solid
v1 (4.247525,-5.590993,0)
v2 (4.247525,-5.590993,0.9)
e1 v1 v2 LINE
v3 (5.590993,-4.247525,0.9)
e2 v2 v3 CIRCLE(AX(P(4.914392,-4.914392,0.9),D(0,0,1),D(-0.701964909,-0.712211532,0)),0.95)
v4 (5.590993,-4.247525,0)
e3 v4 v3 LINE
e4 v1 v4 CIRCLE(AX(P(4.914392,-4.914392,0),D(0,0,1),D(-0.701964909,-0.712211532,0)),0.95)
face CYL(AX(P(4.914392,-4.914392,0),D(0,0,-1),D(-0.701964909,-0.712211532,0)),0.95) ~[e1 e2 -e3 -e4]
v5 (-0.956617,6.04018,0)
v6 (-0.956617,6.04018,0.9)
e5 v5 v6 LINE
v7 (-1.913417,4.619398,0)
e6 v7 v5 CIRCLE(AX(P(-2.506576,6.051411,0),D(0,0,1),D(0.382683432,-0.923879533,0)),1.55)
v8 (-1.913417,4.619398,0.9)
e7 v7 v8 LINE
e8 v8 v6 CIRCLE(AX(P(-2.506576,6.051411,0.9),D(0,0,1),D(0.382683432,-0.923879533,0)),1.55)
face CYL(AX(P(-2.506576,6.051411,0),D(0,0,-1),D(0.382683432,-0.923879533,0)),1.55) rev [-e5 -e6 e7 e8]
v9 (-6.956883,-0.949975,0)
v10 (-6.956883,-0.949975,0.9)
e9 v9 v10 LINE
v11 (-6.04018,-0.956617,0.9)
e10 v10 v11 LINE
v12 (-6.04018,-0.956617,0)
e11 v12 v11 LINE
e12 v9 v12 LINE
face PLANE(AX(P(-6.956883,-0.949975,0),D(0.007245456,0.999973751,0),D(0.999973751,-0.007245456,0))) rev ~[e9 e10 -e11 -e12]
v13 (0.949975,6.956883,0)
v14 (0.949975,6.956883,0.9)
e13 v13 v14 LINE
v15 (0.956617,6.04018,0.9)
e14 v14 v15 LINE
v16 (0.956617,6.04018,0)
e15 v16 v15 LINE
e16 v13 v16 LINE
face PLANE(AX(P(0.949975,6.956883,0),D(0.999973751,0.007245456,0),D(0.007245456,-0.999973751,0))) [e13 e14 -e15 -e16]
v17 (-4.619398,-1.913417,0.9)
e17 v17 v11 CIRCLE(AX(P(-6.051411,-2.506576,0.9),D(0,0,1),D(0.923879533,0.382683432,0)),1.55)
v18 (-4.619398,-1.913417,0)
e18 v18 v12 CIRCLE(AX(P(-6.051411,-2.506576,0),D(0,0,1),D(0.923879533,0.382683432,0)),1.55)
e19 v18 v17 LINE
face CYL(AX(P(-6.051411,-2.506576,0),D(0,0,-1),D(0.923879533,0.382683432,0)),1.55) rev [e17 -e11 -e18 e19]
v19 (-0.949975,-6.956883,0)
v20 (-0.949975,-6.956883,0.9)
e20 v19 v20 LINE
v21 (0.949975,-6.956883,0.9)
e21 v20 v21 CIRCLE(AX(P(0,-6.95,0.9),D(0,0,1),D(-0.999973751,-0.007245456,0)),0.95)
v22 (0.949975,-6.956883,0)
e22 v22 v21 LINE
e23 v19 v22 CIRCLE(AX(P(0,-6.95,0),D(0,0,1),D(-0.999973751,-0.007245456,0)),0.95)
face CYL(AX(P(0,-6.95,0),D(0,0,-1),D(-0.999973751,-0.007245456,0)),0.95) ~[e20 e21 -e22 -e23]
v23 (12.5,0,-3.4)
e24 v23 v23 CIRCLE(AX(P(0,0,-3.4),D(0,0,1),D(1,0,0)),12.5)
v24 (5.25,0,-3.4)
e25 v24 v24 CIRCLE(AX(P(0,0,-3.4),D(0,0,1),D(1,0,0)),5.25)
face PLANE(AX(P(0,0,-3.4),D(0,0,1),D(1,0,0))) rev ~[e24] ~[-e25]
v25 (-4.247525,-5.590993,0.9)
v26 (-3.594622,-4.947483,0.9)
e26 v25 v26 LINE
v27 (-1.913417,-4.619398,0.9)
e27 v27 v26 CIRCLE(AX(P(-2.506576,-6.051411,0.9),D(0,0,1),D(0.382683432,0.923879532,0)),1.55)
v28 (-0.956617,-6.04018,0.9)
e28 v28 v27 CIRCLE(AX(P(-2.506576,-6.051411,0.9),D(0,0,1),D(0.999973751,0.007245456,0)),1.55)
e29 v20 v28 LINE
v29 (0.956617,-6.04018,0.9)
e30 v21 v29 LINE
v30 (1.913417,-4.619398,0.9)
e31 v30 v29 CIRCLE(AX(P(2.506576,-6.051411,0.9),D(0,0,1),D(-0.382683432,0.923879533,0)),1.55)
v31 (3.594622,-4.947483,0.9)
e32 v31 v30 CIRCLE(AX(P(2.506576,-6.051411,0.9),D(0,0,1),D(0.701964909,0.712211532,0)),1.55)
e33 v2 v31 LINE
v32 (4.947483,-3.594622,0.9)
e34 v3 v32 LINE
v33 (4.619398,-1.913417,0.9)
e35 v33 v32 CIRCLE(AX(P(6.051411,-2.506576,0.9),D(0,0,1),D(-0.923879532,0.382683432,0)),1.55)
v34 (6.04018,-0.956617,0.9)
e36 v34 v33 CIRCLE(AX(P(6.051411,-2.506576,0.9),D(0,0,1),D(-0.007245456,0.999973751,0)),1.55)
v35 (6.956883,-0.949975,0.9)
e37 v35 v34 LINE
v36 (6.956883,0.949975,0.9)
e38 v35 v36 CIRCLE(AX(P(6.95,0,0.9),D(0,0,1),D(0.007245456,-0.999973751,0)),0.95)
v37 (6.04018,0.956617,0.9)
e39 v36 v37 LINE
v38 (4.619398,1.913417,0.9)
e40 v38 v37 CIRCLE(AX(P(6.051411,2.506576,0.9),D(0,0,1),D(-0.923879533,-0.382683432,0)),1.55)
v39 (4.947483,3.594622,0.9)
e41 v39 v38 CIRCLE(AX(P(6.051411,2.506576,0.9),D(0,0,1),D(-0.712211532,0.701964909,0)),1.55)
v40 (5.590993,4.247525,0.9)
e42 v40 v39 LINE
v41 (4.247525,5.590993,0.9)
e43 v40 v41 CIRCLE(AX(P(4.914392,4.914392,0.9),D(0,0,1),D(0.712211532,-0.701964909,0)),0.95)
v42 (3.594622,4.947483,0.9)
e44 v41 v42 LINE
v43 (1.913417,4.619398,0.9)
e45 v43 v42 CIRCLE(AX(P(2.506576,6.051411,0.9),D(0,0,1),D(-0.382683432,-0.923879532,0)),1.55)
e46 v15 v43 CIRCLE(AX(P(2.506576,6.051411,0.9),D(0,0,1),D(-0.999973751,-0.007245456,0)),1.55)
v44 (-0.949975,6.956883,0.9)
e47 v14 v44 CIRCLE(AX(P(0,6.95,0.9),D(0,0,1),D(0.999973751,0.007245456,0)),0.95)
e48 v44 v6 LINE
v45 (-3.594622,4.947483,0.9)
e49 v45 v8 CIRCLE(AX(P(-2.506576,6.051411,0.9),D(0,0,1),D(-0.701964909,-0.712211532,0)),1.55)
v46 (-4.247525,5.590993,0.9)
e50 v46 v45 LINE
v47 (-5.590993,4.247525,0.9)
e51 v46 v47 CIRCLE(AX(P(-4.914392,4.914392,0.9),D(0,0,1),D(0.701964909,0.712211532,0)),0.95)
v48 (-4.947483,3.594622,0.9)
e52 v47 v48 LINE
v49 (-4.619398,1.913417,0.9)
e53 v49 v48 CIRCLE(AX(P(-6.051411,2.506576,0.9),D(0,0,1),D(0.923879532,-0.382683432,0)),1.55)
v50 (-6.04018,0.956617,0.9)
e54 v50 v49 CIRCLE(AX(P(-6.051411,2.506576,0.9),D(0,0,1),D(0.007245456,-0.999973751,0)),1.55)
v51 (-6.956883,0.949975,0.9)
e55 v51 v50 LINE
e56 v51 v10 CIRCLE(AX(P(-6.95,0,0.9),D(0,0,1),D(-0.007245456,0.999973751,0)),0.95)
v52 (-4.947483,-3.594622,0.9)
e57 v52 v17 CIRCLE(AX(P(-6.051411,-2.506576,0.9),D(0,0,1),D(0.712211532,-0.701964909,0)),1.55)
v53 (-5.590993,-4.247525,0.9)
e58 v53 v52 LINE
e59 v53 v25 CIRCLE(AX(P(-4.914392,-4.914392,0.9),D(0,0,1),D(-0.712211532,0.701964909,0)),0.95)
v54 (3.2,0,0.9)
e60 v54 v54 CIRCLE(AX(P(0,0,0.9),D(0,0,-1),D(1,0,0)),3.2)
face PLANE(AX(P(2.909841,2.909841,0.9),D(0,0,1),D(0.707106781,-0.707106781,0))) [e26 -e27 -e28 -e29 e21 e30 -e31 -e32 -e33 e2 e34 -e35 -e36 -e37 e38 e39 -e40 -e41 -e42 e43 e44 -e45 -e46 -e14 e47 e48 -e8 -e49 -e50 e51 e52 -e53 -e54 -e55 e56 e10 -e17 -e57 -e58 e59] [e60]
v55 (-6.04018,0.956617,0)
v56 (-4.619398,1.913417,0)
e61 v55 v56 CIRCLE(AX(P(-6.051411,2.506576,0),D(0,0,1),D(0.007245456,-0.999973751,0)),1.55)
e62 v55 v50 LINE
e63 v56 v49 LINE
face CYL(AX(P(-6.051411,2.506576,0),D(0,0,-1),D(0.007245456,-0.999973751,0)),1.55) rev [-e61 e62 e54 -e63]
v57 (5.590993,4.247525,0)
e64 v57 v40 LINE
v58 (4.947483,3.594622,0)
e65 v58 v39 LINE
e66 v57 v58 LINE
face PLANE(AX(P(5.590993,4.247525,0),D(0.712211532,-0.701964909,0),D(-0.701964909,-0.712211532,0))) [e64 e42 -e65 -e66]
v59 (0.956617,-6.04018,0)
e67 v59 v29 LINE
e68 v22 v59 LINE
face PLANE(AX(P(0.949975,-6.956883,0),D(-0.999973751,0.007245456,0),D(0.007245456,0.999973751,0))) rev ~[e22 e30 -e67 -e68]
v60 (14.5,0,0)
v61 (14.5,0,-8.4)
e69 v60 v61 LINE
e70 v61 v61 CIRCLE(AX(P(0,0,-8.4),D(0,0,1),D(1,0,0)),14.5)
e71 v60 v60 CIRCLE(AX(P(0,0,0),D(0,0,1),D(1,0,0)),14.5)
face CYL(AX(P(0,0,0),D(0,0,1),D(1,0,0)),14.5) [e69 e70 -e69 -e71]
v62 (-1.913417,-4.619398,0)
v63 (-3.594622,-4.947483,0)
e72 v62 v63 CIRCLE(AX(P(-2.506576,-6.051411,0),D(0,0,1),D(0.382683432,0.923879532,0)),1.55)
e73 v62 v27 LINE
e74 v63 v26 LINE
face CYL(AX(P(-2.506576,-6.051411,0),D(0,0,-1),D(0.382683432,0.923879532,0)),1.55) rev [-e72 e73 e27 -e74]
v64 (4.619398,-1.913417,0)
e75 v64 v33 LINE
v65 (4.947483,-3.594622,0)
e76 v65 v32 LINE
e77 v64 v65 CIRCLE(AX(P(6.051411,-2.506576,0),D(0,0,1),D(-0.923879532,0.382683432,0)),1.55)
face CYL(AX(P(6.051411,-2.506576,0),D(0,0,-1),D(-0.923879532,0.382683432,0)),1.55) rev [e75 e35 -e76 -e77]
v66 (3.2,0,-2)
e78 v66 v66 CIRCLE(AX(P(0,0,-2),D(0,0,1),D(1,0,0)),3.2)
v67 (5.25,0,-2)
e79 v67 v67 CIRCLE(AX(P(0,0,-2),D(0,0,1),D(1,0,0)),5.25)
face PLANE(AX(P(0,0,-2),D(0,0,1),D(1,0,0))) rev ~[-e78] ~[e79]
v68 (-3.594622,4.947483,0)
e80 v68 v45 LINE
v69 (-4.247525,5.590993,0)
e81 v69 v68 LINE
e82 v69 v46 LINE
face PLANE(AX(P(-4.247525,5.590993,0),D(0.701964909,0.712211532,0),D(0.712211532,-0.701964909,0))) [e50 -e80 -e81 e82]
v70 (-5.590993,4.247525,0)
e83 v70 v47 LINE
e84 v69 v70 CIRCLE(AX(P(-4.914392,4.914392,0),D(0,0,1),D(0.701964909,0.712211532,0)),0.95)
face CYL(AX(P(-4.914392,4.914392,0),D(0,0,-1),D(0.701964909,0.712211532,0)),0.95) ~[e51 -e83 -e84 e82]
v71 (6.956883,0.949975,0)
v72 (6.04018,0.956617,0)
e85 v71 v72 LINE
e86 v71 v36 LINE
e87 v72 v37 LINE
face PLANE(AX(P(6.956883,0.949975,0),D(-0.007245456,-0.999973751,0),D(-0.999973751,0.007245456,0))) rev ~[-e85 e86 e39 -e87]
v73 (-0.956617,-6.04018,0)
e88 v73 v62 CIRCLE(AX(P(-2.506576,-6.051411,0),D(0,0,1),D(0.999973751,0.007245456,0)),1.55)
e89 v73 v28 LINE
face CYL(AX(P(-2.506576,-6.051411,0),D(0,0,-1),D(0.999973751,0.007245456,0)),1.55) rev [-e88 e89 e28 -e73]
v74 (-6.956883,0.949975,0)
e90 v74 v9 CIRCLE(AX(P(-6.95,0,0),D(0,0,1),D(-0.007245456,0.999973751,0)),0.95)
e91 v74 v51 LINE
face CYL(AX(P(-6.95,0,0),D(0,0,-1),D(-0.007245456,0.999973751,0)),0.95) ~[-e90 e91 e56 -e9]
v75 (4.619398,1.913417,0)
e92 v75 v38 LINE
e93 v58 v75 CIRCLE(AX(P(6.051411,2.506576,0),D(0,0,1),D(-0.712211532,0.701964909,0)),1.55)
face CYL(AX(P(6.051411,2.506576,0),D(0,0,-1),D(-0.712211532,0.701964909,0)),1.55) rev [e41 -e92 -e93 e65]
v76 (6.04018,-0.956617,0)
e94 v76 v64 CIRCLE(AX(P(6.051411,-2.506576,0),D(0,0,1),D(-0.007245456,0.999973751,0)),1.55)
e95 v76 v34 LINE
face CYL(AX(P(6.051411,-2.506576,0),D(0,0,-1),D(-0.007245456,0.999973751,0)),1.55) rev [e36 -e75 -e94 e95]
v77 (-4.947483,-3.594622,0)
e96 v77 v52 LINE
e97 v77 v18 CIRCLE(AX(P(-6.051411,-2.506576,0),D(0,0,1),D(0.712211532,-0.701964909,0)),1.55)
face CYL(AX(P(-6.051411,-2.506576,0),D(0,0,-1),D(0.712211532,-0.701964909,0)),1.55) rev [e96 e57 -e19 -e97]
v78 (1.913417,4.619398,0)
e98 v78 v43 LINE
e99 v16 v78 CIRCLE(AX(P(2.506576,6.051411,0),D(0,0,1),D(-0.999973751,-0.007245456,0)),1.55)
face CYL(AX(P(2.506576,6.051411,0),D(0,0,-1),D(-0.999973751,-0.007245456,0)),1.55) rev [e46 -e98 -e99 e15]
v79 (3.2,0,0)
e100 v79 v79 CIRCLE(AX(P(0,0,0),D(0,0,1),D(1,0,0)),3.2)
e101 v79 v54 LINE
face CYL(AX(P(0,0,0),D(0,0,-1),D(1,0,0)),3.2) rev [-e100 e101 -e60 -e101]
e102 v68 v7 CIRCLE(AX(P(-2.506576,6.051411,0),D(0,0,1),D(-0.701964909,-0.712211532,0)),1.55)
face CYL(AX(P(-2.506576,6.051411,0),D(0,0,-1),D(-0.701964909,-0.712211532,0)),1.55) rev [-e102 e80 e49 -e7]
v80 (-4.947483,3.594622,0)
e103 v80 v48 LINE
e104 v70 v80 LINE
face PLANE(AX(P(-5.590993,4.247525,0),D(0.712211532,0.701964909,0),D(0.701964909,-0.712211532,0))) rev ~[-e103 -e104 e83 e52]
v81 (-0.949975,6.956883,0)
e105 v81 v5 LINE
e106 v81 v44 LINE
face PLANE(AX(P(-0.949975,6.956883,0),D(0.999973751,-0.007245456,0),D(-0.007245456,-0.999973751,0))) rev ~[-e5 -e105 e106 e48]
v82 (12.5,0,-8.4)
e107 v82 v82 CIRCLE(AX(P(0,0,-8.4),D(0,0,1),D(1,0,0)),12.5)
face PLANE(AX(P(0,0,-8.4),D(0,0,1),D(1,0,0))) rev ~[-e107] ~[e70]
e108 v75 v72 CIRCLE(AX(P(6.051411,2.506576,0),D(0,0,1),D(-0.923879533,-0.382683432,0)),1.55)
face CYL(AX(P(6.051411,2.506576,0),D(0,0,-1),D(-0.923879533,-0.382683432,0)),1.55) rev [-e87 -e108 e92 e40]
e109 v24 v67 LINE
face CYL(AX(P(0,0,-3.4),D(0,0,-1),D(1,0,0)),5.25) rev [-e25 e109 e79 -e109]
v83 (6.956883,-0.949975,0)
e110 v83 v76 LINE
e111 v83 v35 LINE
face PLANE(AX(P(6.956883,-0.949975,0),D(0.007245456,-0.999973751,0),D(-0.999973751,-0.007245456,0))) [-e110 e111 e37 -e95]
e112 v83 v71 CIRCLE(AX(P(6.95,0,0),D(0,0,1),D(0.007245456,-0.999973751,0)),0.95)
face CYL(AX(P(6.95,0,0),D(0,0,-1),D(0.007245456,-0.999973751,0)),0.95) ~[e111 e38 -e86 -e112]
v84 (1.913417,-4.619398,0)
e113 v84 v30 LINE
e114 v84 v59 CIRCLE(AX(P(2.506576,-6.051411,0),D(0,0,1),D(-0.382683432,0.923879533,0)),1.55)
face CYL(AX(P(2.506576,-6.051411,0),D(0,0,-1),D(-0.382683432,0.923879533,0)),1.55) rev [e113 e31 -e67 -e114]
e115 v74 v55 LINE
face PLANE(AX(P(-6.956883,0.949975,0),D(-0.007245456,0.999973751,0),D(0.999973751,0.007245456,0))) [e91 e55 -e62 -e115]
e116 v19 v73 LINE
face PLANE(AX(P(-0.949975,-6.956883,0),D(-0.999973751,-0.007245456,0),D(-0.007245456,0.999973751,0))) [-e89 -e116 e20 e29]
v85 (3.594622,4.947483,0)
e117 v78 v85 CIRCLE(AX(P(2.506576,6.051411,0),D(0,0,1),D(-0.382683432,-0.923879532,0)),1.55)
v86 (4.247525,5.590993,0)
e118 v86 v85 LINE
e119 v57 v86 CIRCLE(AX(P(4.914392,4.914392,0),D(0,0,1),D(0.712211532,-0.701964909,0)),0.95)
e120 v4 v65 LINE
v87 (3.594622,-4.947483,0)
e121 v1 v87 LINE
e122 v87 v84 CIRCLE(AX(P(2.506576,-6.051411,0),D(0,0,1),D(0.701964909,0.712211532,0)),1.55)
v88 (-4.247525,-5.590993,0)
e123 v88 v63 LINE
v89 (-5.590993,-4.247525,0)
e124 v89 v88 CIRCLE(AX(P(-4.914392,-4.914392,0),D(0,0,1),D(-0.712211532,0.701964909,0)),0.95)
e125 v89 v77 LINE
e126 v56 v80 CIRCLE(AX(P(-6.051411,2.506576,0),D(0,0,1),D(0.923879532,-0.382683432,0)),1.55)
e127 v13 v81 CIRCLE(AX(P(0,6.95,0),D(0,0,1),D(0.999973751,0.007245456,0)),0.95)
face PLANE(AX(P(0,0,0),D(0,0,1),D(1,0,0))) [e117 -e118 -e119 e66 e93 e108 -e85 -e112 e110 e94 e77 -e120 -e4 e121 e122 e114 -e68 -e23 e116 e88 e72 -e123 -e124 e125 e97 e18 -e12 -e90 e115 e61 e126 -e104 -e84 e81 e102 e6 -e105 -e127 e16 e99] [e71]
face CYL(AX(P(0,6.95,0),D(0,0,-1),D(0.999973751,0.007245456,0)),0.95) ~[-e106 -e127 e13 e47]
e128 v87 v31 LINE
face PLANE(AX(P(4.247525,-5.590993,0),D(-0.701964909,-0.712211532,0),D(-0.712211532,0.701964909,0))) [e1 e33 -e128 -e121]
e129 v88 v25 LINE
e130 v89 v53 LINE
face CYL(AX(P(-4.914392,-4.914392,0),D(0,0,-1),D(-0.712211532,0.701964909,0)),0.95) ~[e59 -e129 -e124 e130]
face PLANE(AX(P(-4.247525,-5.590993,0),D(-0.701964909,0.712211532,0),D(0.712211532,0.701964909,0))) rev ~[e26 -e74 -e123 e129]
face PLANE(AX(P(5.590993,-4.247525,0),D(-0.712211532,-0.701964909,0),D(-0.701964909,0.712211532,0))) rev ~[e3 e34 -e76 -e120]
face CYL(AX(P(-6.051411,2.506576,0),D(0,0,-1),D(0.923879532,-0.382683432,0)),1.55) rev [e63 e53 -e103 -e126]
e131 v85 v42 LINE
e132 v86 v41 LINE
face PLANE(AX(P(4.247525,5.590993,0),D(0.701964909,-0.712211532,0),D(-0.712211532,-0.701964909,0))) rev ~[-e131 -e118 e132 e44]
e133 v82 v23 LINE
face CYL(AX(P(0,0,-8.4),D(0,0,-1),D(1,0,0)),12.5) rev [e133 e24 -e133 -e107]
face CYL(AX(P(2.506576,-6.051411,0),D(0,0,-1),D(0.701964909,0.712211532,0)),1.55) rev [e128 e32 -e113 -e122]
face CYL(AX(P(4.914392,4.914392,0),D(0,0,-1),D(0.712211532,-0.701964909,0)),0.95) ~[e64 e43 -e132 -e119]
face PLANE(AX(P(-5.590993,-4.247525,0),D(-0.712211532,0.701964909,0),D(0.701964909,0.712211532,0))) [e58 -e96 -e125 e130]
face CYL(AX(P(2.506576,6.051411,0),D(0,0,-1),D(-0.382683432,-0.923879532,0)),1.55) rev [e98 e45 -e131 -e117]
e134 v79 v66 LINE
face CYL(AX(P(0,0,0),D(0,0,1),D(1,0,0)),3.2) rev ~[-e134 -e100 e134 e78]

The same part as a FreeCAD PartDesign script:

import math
import FreeCAD as App
import Part
import Sketcher
Q = App.Units.Quantity

doc = App.newDocument("Part")
body = doc.addObject("PartDesign::Body", "Body")

sketch1 = body.newObject("Sketcher::SketchObject", "Sketch")
sketch1.AttachmentSupport = (doc.getObject("XY_Plane"), [""])
sketch1.MapMode = "FlatFace"
sketch1.addGeometry(Part.Circle(App.Vector(0, 0, 0), App.Vector(0, 0, 1), 14), False)
sketch1.addConstraint([
    Sketcher.Constraint("Coincident", 0, 3, -1, 1),
    Sketcher.Constraint("Diameter", 0, 29.0),
])
pad1 = body.newObject("PartDesign::Pad", "Pad")
pad1.Profile = sketch1
pad1.Length = 8.4
pad1.Reversed = True

sketch2 = body.newObject("Sketcher::SketchObject", "Sketch001")
sketch2.AttachmentSupport = (doc.getObject("XY_Plane"), [""])
sketch2.MapMode = "FlatFace"
sketch2.addGeometry([
    Part.ArcOfCircle(Part.Circle(App.Vector(0, 7, 0), App.Vector(0, 0, 1), 0.9), math.radians(0), math.radians(180)),
    Part.LineSegment(App.Vector(-0.9, 7, 0), App.Vector(-1, 6, 0)),
    Part.ArcOfCircle(Part.Circle(App.Vector(-2.5, 6.1, 0), App.Vector(0, 0, 1), 1.6), math.radians(-68), math.radians(0)),
    Part.LineSegment(App.Vector(-1.9, 4.6, 0), App.Vector(0, 0, 0)),
    Part.LineSegment(App.Vector(0, 0, 0), App.Vector(1.9, 4.6, 0)),
    Part.ArcOfCircle(Part.Circle(App.Vector(2.5, 6.1, 0), App.Vector(0, 0, 1), 1.6), math.radians(-180), math.radians(-112)),
    Part.LineSegment(App.Vector(1, 6, 0), App.Vector(0.9, 7, 0)),
], False)
sketch2.addConstraint([
    Sketcher.Constraint("Tangent", 0, 2, 1, 1),
    Sketcher.Constraint("Tangent", 1, 2, 2, 2),
    Sketcher.Constraint("Coincident", 2, 1, 3, 1),
    Sketcher.Constraint("Coincident", 3, 2, 4, 1),
    Sketcher.Constraint("Coincident", 4, 2, 5, 2),
    Sketcher.Constraint("Tangent", 5, 1, 6, 1),
    Sketcher.Constraint("Tangent", 6, 2, 0, 1),
    Sketcher.Constraint("Coincident", 3, 2, -1, 1),
    Sketcher.Constraint("Equal", 2, 5),
    Sketcher.Constraint("Symmetric", 2, 3, 5, 3, -2),
    Sketcher.Constraint("PointOnObject", 0, 3, -2),
    Sketcher.Constraint("Horizontal", 2, 1, 4, 2),
    Sketcher.Constraint("Radius", 0, 0.95),
    Sketcher.Constraint("Radius", 2, 1.55),
    Sketcher.Constraint("Distance", 3, 5.0),
    Sketcher.Constraint("Angle", 3, Q("-67.5 deg")),
    Sketcher.Constraint("DistanceY", -1, 1, 0, 3, 6.95),
    Sketcher.Constraint("DistanceX", 2, 3, 0, 2, 1.556601),
])
pad2 = body.newObject("PartDesign::Pad", "Pad001")
pad2.Profile = sketch2
pad2.Length = 0.9
doc.recompute()

polarpattern = body.newObject("PartDesign::PolarPattern", "PolarPattern")
polarpattern.Originals = [pad2]
polarpattern.Axis = (doc.getObject("Z_Axis"), [""])
polarpattern.Angle = 360
polarpattern.Occurrences = 8
body.Tip = polarpattern

sketch3 = body.newObject("Sketcher::SketchObject", "Sketch002")
sketch3.AttachmentSupport = (doc.getObject("XY_Plane"), [""])
sketch3.MapMode = "FlatFace"
sketch3.AttachmentOffset = App.Placement(App.Vector(0, 0, -8.4), App.Rotation())
sketch3.addGeometry(Part.Circle(App.Vector(0, 0, 0), App.Vector(0, 0, 1), 12), False)
sketch3.addConstraint([
    Sketcher.Constraint("Coincident", 0, 3, -1, 1),
    Sketcher.Constraint("Diameter", 0, 25.0),
])
pocket1 = body.newObject("PartDesign::Pocket", "Pocket")
pocket1.Profile = sketch3
pocket1.Length = 5
pocket1.Reversed = True

sketch4 = body.newObject("Sketcher::SketchObject", "Sketch003")
sketch4.AttachmentSupport = (doc.getObject("XY_Plane"), [""])
sketch4.MapMode = "FlatFace"
sketch4.AttachmentOffset = App.Placement(App.Vector(0, 0, -3.4), App.Rotation())
sketch4.addGeometry(Part.Circle(App.Vector(0, 0, 0), App.Vector(0, 0, 1), 5), False)
sketch4.addConstraint([
    Sketcher.Constraint("Coincident", 0, 3, -1, 1),
    Sketcher.Constraint("Diameter", 0, 10.5),
])
pocket2 = body.newObject("PartDesign::Pocket", "Pocket001")
pocket2.Profile = sketch4
pocket2.Length = 1.4
pocket2.Reversed = True

sketch5 = body.newObject("Sketcher::SketchObject", "Sketch004")
sketch5.AttachmentSupport = (doc.getObject("XY_Plane"), [""])
sketch5.MapMode = "FlatFace"
sketch5.addGeometry(Part.Circle(App.Vector(0, 0, 0), App.Vector(0, 0, 1), 3.2), False)
sketch5.addConstraint([
    Sketcher.Constraint("Coincident", 0, 3, -1, 1),
    Sketcher.Constraint("Diameter", 0, 6.4),
])
pocket3 = body.newObject("PartDesign::Pocket", "Pocket002")
pocket3.Profile = sketch5
pocket3.Type = "ThroughAll"
pocket3.Midplane = True

doc.recompute()
